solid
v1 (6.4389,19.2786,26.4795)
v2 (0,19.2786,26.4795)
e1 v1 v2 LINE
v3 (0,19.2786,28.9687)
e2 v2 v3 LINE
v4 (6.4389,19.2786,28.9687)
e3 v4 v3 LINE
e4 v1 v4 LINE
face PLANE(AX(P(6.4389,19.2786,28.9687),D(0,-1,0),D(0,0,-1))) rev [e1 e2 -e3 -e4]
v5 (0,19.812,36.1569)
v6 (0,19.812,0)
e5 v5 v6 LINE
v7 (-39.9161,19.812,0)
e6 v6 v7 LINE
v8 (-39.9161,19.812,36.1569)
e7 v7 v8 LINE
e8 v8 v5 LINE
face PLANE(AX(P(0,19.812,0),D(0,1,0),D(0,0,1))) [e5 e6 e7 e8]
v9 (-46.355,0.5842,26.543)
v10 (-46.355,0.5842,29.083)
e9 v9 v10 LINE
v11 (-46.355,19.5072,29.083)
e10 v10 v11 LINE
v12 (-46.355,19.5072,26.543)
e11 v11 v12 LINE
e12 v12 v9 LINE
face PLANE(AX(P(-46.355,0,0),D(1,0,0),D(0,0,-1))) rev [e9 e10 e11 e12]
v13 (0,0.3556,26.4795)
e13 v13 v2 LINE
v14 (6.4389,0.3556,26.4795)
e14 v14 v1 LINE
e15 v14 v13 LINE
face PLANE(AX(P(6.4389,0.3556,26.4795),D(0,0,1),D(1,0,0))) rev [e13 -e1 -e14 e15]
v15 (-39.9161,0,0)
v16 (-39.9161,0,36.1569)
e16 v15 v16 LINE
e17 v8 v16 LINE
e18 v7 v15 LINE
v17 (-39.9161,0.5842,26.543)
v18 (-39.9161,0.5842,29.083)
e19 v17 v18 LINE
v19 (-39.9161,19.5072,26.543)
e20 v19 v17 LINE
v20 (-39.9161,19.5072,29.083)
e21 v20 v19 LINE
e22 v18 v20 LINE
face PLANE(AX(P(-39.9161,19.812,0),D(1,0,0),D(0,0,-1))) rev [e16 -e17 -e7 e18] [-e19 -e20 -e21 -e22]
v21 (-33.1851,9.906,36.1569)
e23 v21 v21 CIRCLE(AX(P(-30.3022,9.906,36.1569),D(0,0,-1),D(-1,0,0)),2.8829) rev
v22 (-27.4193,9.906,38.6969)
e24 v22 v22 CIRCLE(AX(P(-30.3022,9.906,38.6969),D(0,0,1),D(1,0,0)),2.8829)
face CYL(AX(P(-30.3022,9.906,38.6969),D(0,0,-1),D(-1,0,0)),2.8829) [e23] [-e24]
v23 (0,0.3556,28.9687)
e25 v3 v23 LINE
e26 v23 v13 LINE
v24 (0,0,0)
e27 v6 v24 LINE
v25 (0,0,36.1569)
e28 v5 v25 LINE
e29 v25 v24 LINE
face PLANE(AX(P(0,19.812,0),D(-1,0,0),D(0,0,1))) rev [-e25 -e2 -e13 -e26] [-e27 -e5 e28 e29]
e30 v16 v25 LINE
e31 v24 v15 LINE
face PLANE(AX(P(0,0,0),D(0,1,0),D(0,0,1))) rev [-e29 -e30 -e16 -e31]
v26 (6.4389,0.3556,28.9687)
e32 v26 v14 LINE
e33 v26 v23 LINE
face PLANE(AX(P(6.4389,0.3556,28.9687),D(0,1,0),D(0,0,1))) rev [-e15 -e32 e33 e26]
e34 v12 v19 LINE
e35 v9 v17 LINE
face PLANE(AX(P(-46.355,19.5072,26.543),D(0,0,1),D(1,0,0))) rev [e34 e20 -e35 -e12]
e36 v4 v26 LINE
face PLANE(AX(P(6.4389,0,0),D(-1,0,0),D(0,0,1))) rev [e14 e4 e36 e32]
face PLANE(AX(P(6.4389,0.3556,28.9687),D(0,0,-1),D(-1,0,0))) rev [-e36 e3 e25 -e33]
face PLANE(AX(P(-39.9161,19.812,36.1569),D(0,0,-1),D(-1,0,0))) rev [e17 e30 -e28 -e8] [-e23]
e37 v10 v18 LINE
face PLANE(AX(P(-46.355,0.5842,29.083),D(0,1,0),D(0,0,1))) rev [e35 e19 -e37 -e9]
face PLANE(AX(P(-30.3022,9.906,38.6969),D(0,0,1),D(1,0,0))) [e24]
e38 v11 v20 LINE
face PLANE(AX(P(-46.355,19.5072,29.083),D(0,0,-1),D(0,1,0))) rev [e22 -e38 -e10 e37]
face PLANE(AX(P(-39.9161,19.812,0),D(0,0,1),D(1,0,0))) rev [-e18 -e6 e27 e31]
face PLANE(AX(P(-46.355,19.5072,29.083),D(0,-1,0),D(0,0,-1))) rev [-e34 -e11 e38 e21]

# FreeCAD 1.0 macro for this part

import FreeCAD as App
import Part
import Sketcher

V = App.Vector
Q = App.Units.Quantity


def add_polygon(sketch, points):
    """Adds a closed chain of lines whose ends are joined by coincident constraints."""
    first, n = sketch.GeometryCount, len(points)
    for a, b in zip(points, points[1:] + points[:1]):
        sketch.addGeometry(Part.LineSegment(App.Vector(*a, 0), App.Vector(*b, 0)), False)
    for i in range(n):
        sketch.addConstraint(Sketcher.Constraint("Coincident", first + i, 2, first + (i + 1) % n, 1))

doc = App.newDocument("Part")
params = doc.addObject("Spreadsheet::Sheet", "Params")
for row, (alias, value) in enumerate([
    ("pad1_length", "0.78 in"),
    ("sketch2_width", "0.745 in"),
    ("sketch2_height", "0.098 in"),
    ("pad2_length", "0.2535 in"),
    ("sketch3_height", "0.1 in"),
    ("sketch3_width", "0.745 in"),
    ("pad3_length", "0.2535 in"),
    ("sketch4_diameter", "0.227 in"),
    ("pad4_length", "0.1 in"),
], start=1):
    params.set(f"A{row}", alias)
    params.set(f"B{row}", "=" + value)
    params.setAlias(f"B{row}", alias)

body = doc.addObject("PartDesign::Body", "Body")

# Sketch on XZ plane
sketch1 = body.newObject("Sketcher::SketchObject", "Sketch")
sketch1.AttachmentSupport = (doc.getObject("XZ_Plane"), [""])
sketch1.MapMode = "FlatFace"
add_polygon(sketch1, [(-40, 0), (-40, 36), (0, 36), (0, 0)])  # lines 0-3
sketch1.addConstraint(Sketcher.Constraint("Vertical", 0))
sketch1.addConstraint(Sketcher.Constraint("Horizontal", 1))
sketch1.addConstraint(Sketcher.Constraint("Vertical", 2))
sketch1.addConstraint(Sketcher.Constraint("Horizontal", 3))
sketch1.addConstraint(Sketcher.Constraint("Coincident", 2, 2, -1, 1))
sketch1.addConstraint(Sketcher.Constraint("DistanceX", 1, 1, 1, 2, Q("1.5715 in")))
sketch1.addConstraint(Sketcher.Constraint("DistanceY", 0, 1, 0, 2, Q("1.4235 in")))
pad1 = body.newObject("PartDesign::Pad", "Pad")
pad1.Profile = sketch1
pad1.setExpression("Length", "Params.pad1_length")
pad1.Reversed = True

# Sketch on YZ plane
sketch2 = body.newObject("Sketcher::SketchObject", "Sketch001")
sketch2.AttachmentSupport = (doc.getObject("YZ_Plane"), [""])
sketch2.MapMode = "FlatFace"
add_polygon(sketch2, [(19.3, 29), (0.4, 29), (0.4, 26.5), (19.3, 26.5)])  # lines 0-3
sketch2.addConstraint(Sketcher.Constraint("Horizontal", 0))
sketch2.addConstraint(Sketcher.Constraint("Vertical", 1))
sketch2.addConstraint(Sketcher.Constraint("Horizontal", 2))
sketch2.addConstraint(Sketcher.Constraint("Vertical", 3))
sketch2.addConstraint(Sketcher.Constraint("DistanceX", 0, 2, 0, 1, Q("0.745 in")))
sketch2.addConstraint(Sketcher.Constraint("DistanceY", 1, 2, 1, 1, Q("0.098 in")))
sketch2.addConstraint(Sketcher.Constraint("DistanceX", -1, 1, 0, 2, Q("0.014 in")))
sketch2.addConstraint(Sketcher.Constraint("DistanceY", -1, 1, 0, 2, Q("1.1405 in")))
sketch2.setExpression("Constraints[8]", "Params.sketch2_width")
sketch2.setExpression("Constraints[9]", "Params.sketch2_height")
pad2 = body.newObject("PartDesign::Pad", "Pad001")
pad2.Profile = sketch2
pad2.setExpression("Length", "Params.pad2_length")

# Sketch on YZ plane
sketch3 = body.newObject("Sketcher::SketchObject", "Sketch002")
sketch3.AttachmentSupport = (doc.getObject("YZ_Plane"), [""])
sketch3.MapMode = "FlatFace"
sketch3.AttachmentOffset = App.Placement(V(0, 0, -1.5715 * 25.4), App.Rotation())
add_polygon(sketch3, [(19.5, 26.5), (0.6, 26.5), (0.6, 29.1), (19.5, 29.1)])  # lines 0-3
sketch3.addConstraint(Sketcher.Constraint("Horizontal", 0))
sketch3.addConstraint(Sketcher.Constraint("Vertical", 1))
sketch3.addConstraint(Sketcher.Constraint("Horizontal", 2))
sketch3.addConstraint(Sketcher.Constraint("Vertical", 3))
sketch3.addConstraint(Sketcher.Constraint("DistanceY", 1, 1, 1, 2, Q("0.1 in")))
sketch3.addConstraint(Sketcher.Constraint("DistanceX", 0, 2, 0, 1, Q("0.745 in")))
sketch3.addConstraint(Sketcher.Constraint("DistanceX", -1, 1, 0, 2, Q("0.023 in")))
sketch3.addConstraint(Sketcher.Constraint("DistanceY", -1, 1, 0, 2, Q("1.045 in")))
sketch3.setExpression("Constraints[8]", "Params.sketch3_height")
sketch3.setExpression("Constraints[9]", "Params.sketch3_width")
pad3 = body.newObject("PartDesign::Pad", "Pad002")
pad3.Profile = sketch3
pad3.setExpression("Length", "Params.pad3_length")
pad3.Reversed = True

# Sketch on XY plane
sketch4 = body.newObject("Sketcher::SketchObject", "Sketch003")
sketch4.AttachmentSupport = (doc.getObject("XY_Plane"), [""])
sketch4.MapMode = "FlatFace"
sketch4.AttachmentOffset = App.Placement(V(0, 0, 1.4235 * 25.4), App.Rotation())
sketch4.addGeometry(Part.Circle(V(-30.3, 9.9, 0), V(0, 0, 1), 2.9), False)
sketch4.addConstraint(Sketcher.Constraint("Diameter", 0, Q("0.227 in")))
sketch4.addConstraint(Sketcher.Constraint("DistanceY", -1, 1, 0, 3, Q("0.39 in")))
sketch4.addConstraint(Sketcher.Constraint("DistanceX", 0, 3, -1, 1, Q("1.193 in")))
sketch4.setExpression("Constraints[0]", "Params.sketch4_diameter")
pad4 = body.newObject("PartDesign::Pad", "Pad003")
pad4.Profile = sketch4
pad4.setExpression("Length", "Params.pad4_length")

doc.recompute()
